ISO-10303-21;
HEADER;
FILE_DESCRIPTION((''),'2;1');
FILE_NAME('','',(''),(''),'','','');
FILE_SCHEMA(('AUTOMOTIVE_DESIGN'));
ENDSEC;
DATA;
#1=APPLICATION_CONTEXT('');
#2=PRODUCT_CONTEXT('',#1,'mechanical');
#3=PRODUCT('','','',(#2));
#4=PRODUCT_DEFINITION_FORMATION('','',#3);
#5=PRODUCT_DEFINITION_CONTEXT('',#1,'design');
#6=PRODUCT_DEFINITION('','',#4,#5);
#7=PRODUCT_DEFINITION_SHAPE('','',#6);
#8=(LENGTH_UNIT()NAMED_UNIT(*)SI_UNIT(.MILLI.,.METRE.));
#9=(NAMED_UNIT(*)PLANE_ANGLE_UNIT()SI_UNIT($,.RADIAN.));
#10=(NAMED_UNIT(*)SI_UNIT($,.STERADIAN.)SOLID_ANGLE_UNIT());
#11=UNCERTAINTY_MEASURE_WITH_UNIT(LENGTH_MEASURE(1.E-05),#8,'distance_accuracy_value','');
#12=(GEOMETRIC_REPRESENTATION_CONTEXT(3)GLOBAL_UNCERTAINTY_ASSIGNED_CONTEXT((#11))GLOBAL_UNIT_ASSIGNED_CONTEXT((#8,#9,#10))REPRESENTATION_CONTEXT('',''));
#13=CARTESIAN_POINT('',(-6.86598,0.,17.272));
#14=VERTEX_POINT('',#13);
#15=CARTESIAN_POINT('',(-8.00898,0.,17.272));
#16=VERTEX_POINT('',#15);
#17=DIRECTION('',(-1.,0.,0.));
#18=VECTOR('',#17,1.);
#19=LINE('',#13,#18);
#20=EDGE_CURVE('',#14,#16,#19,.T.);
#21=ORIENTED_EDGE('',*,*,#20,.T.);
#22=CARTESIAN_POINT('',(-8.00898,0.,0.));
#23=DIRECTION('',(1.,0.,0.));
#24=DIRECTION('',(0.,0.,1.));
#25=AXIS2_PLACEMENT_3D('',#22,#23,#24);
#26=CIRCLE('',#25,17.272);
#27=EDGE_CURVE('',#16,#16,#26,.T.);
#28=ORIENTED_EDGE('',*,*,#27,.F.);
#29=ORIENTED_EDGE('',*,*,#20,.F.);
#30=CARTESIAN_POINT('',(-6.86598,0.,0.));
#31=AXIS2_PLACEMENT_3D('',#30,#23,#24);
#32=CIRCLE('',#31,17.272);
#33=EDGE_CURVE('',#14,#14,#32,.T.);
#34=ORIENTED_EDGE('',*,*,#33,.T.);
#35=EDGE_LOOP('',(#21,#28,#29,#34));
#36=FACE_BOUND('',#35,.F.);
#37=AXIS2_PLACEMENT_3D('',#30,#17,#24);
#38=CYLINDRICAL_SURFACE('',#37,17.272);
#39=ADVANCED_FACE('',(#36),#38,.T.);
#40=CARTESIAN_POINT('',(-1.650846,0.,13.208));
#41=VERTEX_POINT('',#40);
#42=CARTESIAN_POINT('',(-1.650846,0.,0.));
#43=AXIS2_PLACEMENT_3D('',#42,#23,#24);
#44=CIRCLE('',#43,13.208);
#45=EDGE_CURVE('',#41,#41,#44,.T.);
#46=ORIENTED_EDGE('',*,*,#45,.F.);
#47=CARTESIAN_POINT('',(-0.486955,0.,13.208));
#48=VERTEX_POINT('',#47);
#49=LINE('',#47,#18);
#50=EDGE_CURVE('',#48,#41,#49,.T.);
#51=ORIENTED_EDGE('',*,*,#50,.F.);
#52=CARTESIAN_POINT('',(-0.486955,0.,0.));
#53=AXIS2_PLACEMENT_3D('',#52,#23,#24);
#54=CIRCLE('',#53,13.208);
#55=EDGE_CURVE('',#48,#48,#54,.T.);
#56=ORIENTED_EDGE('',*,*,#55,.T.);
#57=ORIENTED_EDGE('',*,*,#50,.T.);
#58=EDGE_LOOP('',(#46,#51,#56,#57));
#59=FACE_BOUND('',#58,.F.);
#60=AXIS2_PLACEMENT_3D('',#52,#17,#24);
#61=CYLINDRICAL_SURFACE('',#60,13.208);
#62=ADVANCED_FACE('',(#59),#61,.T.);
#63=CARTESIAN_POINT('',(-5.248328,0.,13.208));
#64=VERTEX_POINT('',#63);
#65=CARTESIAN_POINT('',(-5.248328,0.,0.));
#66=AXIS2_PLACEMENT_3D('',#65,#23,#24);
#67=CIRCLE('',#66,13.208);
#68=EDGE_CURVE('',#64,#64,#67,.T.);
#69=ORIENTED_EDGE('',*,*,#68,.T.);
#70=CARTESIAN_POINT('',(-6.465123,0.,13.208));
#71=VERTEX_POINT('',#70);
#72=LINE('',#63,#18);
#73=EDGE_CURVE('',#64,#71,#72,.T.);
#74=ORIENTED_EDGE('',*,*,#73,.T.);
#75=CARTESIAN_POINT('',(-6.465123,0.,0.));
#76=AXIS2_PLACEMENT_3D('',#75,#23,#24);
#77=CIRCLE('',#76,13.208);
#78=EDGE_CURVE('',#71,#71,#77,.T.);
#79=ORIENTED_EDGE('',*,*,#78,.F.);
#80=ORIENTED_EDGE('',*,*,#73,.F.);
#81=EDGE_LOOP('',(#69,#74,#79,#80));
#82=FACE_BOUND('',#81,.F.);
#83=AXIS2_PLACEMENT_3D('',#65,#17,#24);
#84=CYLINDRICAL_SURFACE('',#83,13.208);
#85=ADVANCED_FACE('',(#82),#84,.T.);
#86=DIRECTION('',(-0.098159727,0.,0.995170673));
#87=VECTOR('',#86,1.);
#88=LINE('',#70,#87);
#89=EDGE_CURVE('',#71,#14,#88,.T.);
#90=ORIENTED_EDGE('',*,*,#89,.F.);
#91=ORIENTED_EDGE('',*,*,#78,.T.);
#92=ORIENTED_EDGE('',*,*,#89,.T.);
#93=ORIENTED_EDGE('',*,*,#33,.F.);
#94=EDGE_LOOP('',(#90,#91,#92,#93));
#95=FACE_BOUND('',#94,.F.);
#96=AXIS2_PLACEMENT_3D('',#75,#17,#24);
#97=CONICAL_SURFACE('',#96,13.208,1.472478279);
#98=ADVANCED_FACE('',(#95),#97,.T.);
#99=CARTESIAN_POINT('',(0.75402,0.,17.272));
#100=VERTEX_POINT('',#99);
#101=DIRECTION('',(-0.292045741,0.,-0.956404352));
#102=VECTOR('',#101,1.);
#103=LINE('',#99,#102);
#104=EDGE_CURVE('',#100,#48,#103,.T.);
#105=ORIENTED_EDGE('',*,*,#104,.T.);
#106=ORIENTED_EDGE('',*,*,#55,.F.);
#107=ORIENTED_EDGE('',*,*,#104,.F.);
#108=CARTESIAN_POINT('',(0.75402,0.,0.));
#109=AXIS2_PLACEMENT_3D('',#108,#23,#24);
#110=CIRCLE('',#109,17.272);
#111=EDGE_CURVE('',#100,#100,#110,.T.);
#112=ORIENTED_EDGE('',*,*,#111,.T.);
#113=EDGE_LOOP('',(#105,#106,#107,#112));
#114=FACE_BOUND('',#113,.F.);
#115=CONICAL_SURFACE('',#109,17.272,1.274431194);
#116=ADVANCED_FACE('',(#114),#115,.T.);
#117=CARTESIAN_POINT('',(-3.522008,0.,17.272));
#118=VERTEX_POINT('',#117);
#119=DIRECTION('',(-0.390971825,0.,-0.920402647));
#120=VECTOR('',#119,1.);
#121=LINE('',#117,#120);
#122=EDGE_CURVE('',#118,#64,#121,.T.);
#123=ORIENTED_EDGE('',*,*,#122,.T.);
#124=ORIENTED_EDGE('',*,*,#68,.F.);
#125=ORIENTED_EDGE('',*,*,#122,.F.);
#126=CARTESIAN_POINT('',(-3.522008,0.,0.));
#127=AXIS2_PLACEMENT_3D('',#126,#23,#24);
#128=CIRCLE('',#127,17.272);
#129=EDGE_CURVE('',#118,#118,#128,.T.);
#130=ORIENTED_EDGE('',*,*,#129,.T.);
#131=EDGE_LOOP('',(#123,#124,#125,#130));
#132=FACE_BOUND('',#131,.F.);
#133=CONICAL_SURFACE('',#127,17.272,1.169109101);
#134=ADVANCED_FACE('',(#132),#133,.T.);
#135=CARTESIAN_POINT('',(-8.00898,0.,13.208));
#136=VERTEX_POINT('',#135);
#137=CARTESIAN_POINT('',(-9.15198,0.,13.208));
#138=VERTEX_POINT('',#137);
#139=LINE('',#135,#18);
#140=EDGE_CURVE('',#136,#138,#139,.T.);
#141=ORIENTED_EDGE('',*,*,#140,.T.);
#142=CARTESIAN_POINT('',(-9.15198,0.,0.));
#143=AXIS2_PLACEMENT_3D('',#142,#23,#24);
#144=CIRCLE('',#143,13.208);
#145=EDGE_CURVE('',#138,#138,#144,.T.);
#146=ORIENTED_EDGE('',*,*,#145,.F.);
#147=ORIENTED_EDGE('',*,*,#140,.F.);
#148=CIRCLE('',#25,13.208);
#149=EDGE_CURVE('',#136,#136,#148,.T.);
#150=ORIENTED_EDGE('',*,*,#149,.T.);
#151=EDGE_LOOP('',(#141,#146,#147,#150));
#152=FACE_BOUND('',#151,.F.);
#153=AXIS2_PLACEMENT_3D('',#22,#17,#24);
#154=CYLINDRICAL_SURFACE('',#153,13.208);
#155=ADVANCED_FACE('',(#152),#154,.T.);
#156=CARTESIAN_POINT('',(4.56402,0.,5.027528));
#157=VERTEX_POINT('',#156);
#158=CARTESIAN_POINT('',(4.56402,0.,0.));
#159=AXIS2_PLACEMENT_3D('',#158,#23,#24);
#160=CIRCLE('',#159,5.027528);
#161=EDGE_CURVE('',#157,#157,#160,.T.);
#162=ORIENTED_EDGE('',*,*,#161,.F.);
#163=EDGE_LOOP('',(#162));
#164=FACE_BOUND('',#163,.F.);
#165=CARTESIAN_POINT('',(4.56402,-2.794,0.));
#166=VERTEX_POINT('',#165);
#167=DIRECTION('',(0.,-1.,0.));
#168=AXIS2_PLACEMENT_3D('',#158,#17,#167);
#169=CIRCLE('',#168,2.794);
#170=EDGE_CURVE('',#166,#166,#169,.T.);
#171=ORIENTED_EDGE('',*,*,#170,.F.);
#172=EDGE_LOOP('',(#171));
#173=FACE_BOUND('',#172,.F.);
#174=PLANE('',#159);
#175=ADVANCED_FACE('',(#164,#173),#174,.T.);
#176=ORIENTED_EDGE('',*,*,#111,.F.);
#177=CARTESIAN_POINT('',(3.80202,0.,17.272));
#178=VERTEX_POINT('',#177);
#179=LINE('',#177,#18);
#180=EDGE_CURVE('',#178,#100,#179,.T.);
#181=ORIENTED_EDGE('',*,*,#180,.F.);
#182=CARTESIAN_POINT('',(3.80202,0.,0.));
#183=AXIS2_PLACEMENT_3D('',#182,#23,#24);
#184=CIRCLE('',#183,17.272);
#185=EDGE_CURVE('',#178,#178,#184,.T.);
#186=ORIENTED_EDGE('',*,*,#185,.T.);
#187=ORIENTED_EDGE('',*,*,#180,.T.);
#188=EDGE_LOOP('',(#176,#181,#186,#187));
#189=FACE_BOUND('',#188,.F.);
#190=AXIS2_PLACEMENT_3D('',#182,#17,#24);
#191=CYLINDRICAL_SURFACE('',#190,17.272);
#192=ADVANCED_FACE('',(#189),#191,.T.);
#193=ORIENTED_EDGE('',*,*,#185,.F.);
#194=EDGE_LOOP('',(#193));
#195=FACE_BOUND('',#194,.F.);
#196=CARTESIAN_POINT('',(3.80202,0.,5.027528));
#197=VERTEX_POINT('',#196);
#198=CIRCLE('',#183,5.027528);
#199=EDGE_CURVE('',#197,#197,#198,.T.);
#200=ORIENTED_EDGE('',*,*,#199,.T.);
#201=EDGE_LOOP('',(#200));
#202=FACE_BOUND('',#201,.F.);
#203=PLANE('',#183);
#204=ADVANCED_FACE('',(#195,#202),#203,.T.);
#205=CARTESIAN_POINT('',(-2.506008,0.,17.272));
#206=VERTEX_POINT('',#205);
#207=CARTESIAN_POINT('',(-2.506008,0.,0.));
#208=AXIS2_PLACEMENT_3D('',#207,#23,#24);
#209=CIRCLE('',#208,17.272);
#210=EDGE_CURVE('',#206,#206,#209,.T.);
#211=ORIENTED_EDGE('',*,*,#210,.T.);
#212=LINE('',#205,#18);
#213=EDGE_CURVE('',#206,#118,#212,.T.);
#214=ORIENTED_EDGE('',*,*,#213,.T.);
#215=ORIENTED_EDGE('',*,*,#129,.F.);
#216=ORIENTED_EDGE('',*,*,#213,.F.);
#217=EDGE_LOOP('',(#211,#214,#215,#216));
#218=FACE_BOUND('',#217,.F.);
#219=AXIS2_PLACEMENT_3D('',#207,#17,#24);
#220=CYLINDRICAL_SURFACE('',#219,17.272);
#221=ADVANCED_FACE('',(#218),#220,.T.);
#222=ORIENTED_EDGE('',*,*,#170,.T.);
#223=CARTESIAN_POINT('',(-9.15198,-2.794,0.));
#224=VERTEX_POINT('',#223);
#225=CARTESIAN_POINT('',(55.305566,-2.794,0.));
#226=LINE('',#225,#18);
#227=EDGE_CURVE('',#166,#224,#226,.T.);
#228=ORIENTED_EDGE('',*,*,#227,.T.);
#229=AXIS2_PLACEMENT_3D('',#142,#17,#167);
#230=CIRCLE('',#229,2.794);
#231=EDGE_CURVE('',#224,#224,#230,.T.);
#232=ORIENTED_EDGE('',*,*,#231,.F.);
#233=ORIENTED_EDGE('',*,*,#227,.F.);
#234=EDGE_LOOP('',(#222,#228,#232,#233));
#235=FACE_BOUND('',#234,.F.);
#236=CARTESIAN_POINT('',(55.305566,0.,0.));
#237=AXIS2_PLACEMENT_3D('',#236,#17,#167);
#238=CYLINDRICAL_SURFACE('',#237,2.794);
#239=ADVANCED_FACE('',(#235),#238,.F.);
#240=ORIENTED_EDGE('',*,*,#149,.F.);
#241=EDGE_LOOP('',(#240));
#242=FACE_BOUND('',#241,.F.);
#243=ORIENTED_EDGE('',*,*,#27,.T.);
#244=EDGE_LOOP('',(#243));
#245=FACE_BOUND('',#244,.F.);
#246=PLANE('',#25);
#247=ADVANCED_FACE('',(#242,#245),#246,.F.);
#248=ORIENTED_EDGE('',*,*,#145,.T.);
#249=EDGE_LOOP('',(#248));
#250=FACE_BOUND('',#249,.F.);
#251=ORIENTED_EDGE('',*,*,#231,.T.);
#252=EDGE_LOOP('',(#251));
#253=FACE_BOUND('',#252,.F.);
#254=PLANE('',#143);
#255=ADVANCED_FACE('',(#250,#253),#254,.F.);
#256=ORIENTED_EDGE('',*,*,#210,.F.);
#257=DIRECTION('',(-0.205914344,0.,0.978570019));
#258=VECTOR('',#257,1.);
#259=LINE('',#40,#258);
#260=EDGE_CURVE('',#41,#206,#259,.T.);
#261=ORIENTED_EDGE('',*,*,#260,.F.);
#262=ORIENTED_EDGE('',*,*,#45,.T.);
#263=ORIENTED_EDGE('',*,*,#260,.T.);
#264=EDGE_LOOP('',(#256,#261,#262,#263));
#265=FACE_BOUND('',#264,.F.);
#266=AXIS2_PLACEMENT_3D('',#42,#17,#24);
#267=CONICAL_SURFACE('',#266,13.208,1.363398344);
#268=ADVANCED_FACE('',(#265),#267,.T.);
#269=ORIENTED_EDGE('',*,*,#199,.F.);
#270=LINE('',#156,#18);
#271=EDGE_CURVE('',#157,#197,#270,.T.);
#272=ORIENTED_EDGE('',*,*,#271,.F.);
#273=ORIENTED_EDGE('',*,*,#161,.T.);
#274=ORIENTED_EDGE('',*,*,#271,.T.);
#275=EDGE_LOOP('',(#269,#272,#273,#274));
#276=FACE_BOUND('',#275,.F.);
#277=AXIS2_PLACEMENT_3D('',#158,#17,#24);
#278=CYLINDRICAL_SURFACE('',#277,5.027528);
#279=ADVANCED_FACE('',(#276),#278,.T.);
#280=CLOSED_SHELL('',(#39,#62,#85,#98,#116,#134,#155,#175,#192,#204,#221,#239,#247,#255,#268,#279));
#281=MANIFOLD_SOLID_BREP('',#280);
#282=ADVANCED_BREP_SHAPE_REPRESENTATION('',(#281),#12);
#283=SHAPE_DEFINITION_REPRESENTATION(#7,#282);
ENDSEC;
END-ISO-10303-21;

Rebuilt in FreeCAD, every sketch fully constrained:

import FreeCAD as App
import Part
import Sketcher

V = App.Vector
Q = App.Units.Quantity

doc = App.newDocument("Part")
params = doc.addObject("Spreadsheet::Sheet", "Params")
for row, (alias, value) in enumerate([
    ("sketch1_width", "0.54 in"),
    ("sketch1_width2", "0.03 in"),
    ("sketch1_width3", "0.12 in"),
    ("sketch1_width4", "0.04 in"),
    ("sketch1_height", "0.52 in"),
    ("revolution_angle", "360 deg"),
    ("sketch2_diameter", "0.22 in"),
    ("hole_diameter", "0.22 in"),
], start=1):
    params.set(f"A{row}", alias)
    params.set(f"B{row}", "=" + value)
    params.setAlias(f"B{row}", alias)

body = doc.addObject("PartDesign::Body", "Body")

sketch1 = body.newObject("Sketcher::SketchObject", "Sketch")
sketch1.AttachmentSupport = (doc.getObject("XZ_Plane"), [""])
sketch1.MapMode = "FlatFace"
sketch1.addGeometry([
    Part.LineSegment(V(-9.15198, 13.208, 0), V(-9.15198, 0, 0)),
    Part.LineSegment(V(-9.15198, 0, 0), V(4.56402, 0, 0)),
    Part.LineSegment(V(4.56402, 0, 0), V(4.56402, 5.027528, 0)),
    Part.LineSegment(V(4.56402, 5.027528, 0), V(3.80202, 5.027528, 0)),
    Part.LineSegment(V(3.80202, 5.027528, 0), V(3.80202, 17.272, 0)),
    Part.LineSegment(V(3.80202, 17.272, 0), V(0.75402, 17.272, 0)),
    Part.LineSegment(V(0.75402, 17.272, 0), V(-0.486955, 13.208, 0)),
    Part.LineSegment(V(-0.486955, 13.208, 0), V(-1.650846, 13.208, 0)),
    Part.LineSegment(V(-1.650846, 13.208, 0), V(-2.506008, 17.272, 0)),
    Part.LineSegment(V(-2.506008, 17.272, 0), V(-3.522008, 17.272, 0)),
    Part.LineSegment(V(-3.522008, 17.272, 0), V(-5.248328, 13.208, 0)),
    Part.LineSegment(V(-5.248328, 13.208, 0), V(-6.465123, 13.208, 0)),
    Part.LineSegment(V(-6.465123, 13.208, 0), V(-6.86598, 17.272, 0)),
    Part.LineSegment(V(-6.86598, 17.272, 0), V(-8.00898, 17.272, 0)),
    Part.LineSegment(V(-8.00898, 17.272, 0), V(-8.00898, 13.208, 0)),
    Part.LineSegment(V(-8.00898, 13.208, 0), V(-9.15198, 13.208, 0)),
], False)
sketch1.addConstraint([
    Sketcher.Constraint("Coincident", 0, 2, 1, 1),
    Sketcher.Constraint("Coincident", 1, 2, 2, 1),
    Sketcher.Constraint("Coincident", 2, 2, 3, 1),
    Sketcher.Constraint("Coincident", 3, 2, 4, 1),
    Sketcher.Constraint("Coincident", 4, 2, 5, 1),
    Sketcher.Constraint("Coincident", 5, 2, 6, 1),
    Sketcher.Constraint("Coincident", 6, 2, 7, 1),
    Sketcher.Constraint("Coincident", 7, 2, 8, 1),
    Sketcher.Constraint("Coincident", 8, 2, 9, 1),
    Sketcher.Constraint("Coincident", 9, 2, 10, 1),
    Sketcher.Constraint("Coincident", 10, 2, 11, 1),
    Sketcher.Constraint("Coincident", 11, 2, 12, 1),
    Sketcher.Constraint("Coincident", 12, 2, 13, 1),
    Sketcher.Constraint("Coincident", 13, 2, 14, 1),
    Sketcher.Constraint("Coincident", 14, 2, 15, 1),
    Sketcher.Constraint("Coincident", 15, 2, 0, 1),
    Sketcher.Constraint("Vertical", 0),
    Sketcher.Constraint("Horizontal", 1),
    Sketcher.Constraint("Vertical", 2),
    Sketcher.Constraint("Horizontal", 3),
    Sketcher.Constraint("Vertical", 4),
    Sketcher.Constraint("Horizontal", 5),
    Sketcher.Constraint("Horizontal", 7),
    Sketcher.Constraint("Horizontal", 9),
    Sketcher.Constraint("Horizontal", 11),
    Sketcher.Constraint("Horizontal", 13),
    Sketcher.Constraint("Vertical", 14),
    Sketcher.Constraint("Horizontal", 15),
    Sketcher.Constraint("PointOnObject", 0, 2, -1),
    Sketcher.Constraint("Horizontal", 5, 2, 8, 2),
    Sketcher.Constraint("Horizontal", 7, 2, 10, 2),
    Sketcher.Constraint("Horizontal", 9, 2, 12, 2),
    Sketcher.Constraint("Horizontal", 11, 2, 14, 2),
    Sketcher.Constraint("Equal", 13, 15),
    Sketcher.Constraint("DistanceX", 1, 1, 1, 2, Q("0.54 in")),
    Sketcher.Constraint("DistanceX", 3, 2, 3, 1, Q("0.03 in")),
    Sketcher.Constraint("DistanceX", 5, 2, 5, 1, Q("0.12 in")),
    Sketcher.Constraint("DistanceX", 9, 2, 9, 1, Q("0.04 in")),
    Sketcher.Constraint("DistanceY", 0, 2, 0, 1, Q("0.52 in")),
    Sketcher.Constraint("DistanceY", 14, 2, 14, 1, Q("0.16 in")),
    Sketcher.Constraint("DistanceX", 13, 2, 13, 1, Q("0.045 in")),
    Sketcher.Constraint("Distance", 8, Q("4.152999 mm")),
    Sketcher.Constraint("DistanceX", 7, 2, 7, 1, Q("1.163891 mm")),
    Sketcher.Constraint("DistanceY", 2, 1, 2, 2, Q("5.027528 mm")),
    Sketcher.Constraint("Distance", 6, Q("4.249249 mm")),
    Sketcher.Constraint("Distance", 10, Q("4.415459 mm")),
    Sketcher.Constraint("Distance", 12, Q("4.083722 mm")),
    Sketcher.Constraint("DistanceX", 0, 2, -1, 1, Q("9.15198 mm")),
])
sketch1.setExpression("Constraints[34]", "Params.sketch1_width")
sketch1.setExpression("Constraints[35]", "Params.sketch1_width2")
sketch1.setExpression("Constraints[36]", "Params.sketch1_width3")
sketch1.setExpression("Constraints[37]", "Params.sketch1_width4")
sketch1.setExpression("Constraints[38]", "Params.sketch1_height")
revolution = body.newObject("PartDesign::Revolution", "Revolution")
revolution.Profile = sketch1
revolution.ReferenceAxis = (sketch1, ["H_Axis"])
revolution.setExpression("Angle", "Params.revolution_angle")

sketch2 = body.newObject("Sketcher::SketchObject", "Sketch001")
sketch2.AttachmentSupport = (doc.getObject("YZ_Plane"), [""])
sketch2.MapMode = "FlatFace"
sketch2.AttachmentOffset = App.Placement(V(0, 0, 4.56402), App.Rotation())
sketch2.addGeometry(Part.Circle(V(0, 0, 0), V(0, 0, 1), 2.794), False)
sketch2.addConstraint([
    Sketcher.Constraint("Coincident", 0, 3, -1, 1),
    Sketcher.Constraint("Diameter", 0, Q("0.22 in")),
])
sketch2.setExpression("Constraints[1]", "Params.sketch2_diameter")
doc.recompute()
hole = body.newObject("PartDesign::Hole", "Hole")
hole.Profile = sketch2
hole.ThreadType = "None"
hole.setExpression("Diameter", "Params.hole_diameter")
hole.DepthType = "ThroughAll"

doc.recompute()
